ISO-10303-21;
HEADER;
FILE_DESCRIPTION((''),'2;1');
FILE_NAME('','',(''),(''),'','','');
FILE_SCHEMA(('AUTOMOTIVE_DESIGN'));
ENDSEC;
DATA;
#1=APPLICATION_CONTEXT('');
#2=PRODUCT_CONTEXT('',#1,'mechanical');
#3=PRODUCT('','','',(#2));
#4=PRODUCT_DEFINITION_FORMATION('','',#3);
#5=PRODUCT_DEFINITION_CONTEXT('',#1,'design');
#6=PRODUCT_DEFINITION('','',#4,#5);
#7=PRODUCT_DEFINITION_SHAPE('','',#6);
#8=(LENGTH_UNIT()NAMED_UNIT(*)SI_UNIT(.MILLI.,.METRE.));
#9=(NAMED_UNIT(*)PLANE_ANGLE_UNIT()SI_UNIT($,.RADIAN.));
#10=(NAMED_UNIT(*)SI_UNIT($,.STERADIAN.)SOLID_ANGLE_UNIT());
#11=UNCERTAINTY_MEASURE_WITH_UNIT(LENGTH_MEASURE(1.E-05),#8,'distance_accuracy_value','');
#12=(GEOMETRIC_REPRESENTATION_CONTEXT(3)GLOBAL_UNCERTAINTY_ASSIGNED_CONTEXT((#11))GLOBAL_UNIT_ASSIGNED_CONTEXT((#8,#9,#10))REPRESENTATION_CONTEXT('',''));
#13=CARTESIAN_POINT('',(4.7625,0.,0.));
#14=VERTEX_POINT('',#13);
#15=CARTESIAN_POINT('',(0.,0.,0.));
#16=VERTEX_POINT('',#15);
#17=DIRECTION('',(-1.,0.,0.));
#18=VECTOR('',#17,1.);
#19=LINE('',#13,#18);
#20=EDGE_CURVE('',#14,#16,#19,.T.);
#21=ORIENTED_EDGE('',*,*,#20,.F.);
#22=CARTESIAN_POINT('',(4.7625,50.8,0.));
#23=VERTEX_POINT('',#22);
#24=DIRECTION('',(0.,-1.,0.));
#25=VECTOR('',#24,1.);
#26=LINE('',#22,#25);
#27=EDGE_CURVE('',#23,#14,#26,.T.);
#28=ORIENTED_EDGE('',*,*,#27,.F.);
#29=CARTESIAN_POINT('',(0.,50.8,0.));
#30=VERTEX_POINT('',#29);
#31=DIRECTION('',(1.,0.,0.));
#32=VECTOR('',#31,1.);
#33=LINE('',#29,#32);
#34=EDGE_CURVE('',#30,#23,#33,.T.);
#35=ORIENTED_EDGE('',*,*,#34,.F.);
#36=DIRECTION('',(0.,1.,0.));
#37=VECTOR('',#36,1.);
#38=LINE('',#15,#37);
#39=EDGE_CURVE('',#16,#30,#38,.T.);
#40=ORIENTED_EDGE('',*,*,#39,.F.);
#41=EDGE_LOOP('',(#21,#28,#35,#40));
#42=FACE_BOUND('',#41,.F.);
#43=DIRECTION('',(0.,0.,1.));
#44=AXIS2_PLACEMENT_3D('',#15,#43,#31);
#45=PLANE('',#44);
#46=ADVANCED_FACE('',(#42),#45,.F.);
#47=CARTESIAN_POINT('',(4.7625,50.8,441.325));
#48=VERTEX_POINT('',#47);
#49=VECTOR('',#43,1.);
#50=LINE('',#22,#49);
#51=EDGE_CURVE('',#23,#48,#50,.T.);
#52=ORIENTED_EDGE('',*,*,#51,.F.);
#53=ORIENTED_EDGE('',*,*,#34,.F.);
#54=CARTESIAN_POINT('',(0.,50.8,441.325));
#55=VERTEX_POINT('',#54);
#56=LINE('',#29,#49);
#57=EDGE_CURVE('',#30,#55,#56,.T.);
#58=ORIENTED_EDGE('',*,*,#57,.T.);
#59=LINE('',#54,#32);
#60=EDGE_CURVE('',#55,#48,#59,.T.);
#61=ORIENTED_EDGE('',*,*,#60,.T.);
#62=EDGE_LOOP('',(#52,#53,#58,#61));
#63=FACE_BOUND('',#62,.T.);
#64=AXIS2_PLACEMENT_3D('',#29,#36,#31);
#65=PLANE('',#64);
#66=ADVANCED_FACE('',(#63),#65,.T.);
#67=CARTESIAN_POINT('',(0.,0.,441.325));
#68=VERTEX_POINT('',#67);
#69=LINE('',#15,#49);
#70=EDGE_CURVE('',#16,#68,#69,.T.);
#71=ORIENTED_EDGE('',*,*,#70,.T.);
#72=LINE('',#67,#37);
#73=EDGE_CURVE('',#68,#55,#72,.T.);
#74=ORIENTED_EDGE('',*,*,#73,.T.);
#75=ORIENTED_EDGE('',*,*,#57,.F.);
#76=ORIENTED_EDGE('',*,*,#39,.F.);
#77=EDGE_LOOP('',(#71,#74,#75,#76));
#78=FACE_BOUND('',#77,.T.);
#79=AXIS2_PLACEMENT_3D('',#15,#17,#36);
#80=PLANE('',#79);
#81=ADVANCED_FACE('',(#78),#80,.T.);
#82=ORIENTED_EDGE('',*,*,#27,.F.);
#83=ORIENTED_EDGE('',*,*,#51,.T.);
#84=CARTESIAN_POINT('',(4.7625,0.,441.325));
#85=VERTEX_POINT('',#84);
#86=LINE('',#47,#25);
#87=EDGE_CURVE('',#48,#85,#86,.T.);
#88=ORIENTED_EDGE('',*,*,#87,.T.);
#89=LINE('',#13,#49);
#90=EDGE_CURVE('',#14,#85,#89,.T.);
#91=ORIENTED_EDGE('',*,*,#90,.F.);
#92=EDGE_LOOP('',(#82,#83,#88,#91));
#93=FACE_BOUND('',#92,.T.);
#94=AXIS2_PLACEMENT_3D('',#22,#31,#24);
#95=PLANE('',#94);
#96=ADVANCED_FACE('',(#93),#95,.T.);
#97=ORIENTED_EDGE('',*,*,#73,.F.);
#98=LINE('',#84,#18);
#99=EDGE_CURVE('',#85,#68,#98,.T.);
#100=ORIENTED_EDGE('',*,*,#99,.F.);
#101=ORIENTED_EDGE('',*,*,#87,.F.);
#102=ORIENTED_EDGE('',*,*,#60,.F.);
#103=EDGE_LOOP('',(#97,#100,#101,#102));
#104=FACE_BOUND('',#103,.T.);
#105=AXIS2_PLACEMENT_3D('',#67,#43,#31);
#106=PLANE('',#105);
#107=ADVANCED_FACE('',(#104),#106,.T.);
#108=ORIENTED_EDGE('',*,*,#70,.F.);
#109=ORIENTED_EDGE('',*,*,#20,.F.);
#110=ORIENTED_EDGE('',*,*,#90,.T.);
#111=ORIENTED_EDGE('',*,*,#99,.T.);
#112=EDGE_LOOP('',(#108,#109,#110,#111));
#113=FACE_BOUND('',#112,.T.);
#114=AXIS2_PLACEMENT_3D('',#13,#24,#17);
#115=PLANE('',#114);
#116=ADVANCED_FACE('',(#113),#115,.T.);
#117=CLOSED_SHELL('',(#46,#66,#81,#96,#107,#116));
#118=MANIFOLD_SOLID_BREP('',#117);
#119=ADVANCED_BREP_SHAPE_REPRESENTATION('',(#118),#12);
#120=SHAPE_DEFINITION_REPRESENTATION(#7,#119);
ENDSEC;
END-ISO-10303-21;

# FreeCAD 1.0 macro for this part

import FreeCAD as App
import Part
import Sketcher
from FreeCAD import Vector
Q = App.Units.Quantity


def add_polygon(sketch, points):
    """Adds a closed chain of lines whose ends are joined by coincident constraints."""
    first, n = sketch.GeometryCount, len(points)
    for a, b in zip(points, points[1:] + points[:1]):
        sketch.addGeometry(Part.LineSegment(App.Vector(*a, 0), App.Vector(*b, 0)), False)
    for i in range(n):
        sketch.addConstraint(Sketcher.Constraint("Coincident", first + i, 2, first + (i + 1) % n, 1))

doc = App.newDocument("Part")
params = doc.addObject("Spreadsheet::Sheet", "Params")
for row, (alias, value) in enumerate([
    ("sketch1_height", "2 in"),
    ("sketch1_width", "0.1875 in"),
    ("pad1_length", "17.375 in"),
], start=1):
    params.set(f"A{row}", alias)
    params.set(f"B{row}", "=" + value)
    params.setAlias(f"B{row}", alias)

body = doc.addObject("PartDesign::Body", "Body")

# Sketch on XY plane
sketch1 = body.newObject("Sketcher::SketchObject", "Sketch")
sketch1.AttachmentSupport = (doc.getObject("XY_Plane"), [""])
sketch1.MapMode = "FlatFace"
add_polygon(sketch1, [(4.8, 50.8), (0, 50.8), (0, 0), (4.8, 0)])  # lines 0-3
sketch1.addConstraint([
    Sketcher.Constraint("Horizontal", 0),
    Sketcher.Constraint("Vertical", 1),
    Sketcher.Constraint("Horizontal", 2),
    Sketcher.Constraint("Vertical", 3),
    Sketcher.Constraint("Coincident", 1, 2, -1, 1),
    Sketcher.Constraint("DistanceY", 1, 2, 1, 1, Q("2 in")),
    Sketcher.Constraint("DistanceX", 0, 2, 0, 1, Q("0.1875 in")),
])
sketch1.setExpression("Constraints[9]", "Params.sketch1_height")
sketch1.setExpression("Constraints[10]", "Params.sketch1_width")
pad1 = body.newObject("PartDesign::Pad", "Pad")
pad1.Profile = sketch1
pad1.setExpression("Length", "Params.pad1_length")

doc.recompute()
